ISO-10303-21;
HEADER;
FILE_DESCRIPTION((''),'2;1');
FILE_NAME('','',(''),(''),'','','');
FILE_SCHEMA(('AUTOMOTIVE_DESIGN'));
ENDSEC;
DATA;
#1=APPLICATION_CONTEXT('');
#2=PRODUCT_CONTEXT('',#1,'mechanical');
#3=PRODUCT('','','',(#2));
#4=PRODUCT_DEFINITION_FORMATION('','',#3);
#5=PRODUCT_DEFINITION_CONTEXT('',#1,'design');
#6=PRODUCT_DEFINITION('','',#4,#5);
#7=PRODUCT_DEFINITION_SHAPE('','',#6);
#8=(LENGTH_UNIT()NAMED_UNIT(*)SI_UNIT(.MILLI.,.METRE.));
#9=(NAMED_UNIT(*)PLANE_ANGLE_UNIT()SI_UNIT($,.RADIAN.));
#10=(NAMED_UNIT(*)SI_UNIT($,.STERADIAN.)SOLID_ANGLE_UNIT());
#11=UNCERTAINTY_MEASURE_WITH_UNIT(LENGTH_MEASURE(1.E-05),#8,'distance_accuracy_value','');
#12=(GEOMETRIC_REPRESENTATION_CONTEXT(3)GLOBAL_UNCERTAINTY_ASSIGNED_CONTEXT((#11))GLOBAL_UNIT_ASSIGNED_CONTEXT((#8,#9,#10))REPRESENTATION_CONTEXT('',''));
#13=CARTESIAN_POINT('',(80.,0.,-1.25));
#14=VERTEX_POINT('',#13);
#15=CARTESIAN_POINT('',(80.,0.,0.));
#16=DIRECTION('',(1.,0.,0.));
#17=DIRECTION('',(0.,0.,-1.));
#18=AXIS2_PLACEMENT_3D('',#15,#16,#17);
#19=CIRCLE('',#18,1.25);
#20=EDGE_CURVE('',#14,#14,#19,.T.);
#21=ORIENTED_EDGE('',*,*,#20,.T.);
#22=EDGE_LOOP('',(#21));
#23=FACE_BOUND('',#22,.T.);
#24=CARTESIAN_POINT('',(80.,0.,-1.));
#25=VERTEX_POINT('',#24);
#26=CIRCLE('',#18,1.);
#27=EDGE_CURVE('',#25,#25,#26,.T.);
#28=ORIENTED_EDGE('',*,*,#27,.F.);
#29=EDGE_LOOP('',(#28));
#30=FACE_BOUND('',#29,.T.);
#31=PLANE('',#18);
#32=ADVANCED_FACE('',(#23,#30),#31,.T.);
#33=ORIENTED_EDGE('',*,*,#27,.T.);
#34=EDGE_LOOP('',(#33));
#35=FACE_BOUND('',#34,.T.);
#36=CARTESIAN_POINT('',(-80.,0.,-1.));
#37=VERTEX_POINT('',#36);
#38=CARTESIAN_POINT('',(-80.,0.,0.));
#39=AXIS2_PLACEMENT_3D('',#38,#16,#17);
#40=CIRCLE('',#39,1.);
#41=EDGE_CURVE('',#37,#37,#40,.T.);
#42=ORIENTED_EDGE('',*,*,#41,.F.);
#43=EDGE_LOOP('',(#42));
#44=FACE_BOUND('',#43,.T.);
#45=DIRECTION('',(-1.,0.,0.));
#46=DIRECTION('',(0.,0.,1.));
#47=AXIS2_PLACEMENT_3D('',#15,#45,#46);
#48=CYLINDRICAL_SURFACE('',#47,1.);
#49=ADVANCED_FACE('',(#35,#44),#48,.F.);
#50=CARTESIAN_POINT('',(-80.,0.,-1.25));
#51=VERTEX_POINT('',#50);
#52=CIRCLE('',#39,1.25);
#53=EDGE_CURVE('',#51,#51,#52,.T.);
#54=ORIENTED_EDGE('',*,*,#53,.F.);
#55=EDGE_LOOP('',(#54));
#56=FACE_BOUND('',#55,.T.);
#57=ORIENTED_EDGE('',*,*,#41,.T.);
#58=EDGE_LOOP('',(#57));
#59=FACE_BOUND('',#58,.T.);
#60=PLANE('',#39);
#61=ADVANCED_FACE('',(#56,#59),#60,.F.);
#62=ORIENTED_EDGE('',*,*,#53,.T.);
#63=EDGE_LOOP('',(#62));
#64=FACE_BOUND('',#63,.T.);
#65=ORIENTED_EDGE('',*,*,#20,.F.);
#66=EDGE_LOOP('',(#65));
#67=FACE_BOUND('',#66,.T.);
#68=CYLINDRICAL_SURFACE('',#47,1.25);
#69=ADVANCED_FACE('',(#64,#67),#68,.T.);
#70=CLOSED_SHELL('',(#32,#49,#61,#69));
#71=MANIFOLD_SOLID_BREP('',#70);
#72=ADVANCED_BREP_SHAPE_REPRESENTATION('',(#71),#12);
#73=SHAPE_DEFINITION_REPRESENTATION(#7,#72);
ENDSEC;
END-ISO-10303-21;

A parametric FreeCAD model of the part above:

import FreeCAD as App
import Part
import Sketcher

V = App.Vector

doc = App.newDocument("Part")
params = doc.addObject("Spreadsheet::Sheet", "Params")
for row, (alias, value) in enumerate([
    ("sketch1_diameter", "2 mm"),
    ("sketch1_diameter2", "2.5 mm"),
    ("pad1_length", "160 mm"),
], start=1):
    params.set(f"A{row}", alias)
    params.set(f"B{row}", "=" + value)
    params.setAlias(f"B{row}", alias)

body = doc.addObject("PartDesign::Body", "Body")

sketch1 = body.newObject("Sketcher::SketchObject", "Sketch")
sketch1.AttachmentSupport = (doc.getObject("YZ_Plane"), [""])
sketch1.MapMode = "FlatFace"
sketch1.addGeometry([
    Part.Circle(V(0, 0, 0), V(0, 0, 1), 1.2),
    Part.Circle(V(0, 0, 0), V(0, 0, 1), 1),
], False)
sketch1.addConstraint([
    Sketcher.Constraint("Coincident", 0, 3, -1, 1),
    Sketcher.Constraint("Coincident", 1, 3, -1, 1),
    Sketcher.Constraint("Diameter", 1, 2.0),
    Sketcher.Constraint("Diameter", 0, 2.5),
])
sketch1.setExpression("Constraints[2]", "Params.sketch1_diameter")
sketch1.setExpression("Constraints[3]", "Params.sketch1_diameter2")
pad1 = body.newObject("PartDesign::Pad", "Pad")
pad1.Profile = sketch1
pad1.setExpression("Length", "Params.pad1_length")
pad1.Midplane = True

doc.recompute()
